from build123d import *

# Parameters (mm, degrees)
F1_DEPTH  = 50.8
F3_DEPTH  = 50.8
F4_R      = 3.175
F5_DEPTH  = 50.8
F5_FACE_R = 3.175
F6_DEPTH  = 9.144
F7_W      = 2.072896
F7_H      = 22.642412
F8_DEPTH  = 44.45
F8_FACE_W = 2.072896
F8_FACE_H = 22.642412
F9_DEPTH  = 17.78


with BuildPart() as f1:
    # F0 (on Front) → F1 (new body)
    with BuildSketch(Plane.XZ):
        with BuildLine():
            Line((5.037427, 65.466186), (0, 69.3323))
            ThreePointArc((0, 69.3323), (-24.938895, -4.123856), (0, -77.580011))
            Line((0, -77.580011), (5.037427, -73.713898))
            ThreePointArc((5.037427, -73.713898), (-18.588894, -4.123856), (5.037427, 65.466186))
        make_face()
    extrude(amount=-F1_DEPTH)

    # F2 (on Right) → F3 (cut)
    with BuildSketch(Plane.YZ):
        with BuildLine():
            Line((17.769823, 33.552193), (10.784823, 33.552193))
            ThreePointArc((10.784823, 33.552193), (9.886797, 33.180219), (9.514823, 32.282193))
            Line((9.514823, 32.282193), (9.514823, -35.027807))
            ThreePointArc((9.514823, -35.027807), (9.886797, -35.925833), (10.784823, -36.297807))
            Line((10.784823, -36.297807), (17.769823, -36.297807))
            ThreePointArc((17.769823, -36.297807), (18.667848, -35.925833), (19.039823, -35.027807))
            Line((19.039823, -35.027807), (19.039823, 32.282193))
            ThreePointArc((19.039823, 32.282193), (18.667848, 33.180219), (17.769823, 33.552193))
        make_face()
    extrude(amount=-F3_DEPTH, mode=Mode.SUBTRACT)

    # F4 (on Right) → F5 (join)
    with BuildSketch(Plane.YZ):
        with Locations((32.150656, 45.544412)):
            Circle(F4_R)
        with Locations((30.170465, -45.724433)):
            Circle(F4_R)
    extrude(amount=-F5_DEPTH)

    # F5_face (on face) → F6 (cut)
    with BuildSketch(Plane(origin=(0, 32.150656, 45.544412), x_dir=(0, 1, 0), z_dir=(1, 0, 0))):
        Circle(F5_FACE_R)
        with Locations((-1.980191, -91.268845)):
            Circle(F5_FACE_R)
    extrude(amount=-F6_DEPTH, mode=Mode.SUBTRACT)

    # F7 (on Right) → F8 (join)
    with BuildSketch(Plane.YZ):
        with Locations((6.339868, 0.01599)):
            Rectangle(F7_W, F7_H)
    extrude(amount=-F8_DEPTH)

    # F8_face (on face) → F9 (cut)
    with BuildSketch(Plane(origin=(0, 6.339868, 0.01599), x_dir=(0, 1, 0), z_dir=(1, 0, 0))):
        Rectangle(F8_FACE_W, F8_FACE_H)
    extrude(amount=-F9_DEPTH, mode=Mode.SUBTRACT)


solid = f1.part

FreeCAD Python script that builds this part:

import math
import FreeCAD as App
import Part
import Sketcher
from FreeCAD import Vector
Q = App.Units.Quantity


def add_polygon(sketch, points):
    """Adds a closed chain of lines whose ends are joined by coincident constraints."""
    first, n = sketch.GeometryCount, len(points)
    for a, b in zip(points, points[1:] + points[:1]):
        sketch.addGeometry(Part.LineSegment(App.Vector(*a, 0), App.Vector(*b, 0)), False)
    for i in range(n):
        sketch.addConstraint(Sketcher.Constraint("Coincident", first + i, 2, first + (i + 1) % n, 1))

doc = App.newDocument("Part")
params = doc.addObject("Spreadsheet::Sheet", "Params")
for row, (alias, value) in enumerate([
    ("sketch1_radius", "4.5 in"),
    ("sketch1_radius2", "4.7499999 in"),
    ("pad1_length", "2 in"),
    ("sketch2_radius", "0.0499999 in"),
    ("sketch2_height", "2.65 in"),
    ("sketch2_width", "0.275 in"),
    ("pocket1_length", "2 in"),
    ("sketch3_diameter", "0.25 in"),
    ("pad2_length", "2 in"),
    ("sketch4_diameter", "0.25 in"),
    ("pocket2_length", "0.36 in"),
    ("pad3_length", "1.75 in"),
    ("pocket3_length", "0.7 in"),
], start=1):
    params.set(f"A{row}", alias)
    params.set(f"B{row}", "=" + value)
    params.setAlias(f"B{row}", alias)

body = doc.addObject("PartDesign::Body", "Body")

# Sketch on XZ plane
sketch1 = body.newObject("Sketcher::SketchObject", "Sketch")
sketch1.AttachmentSupport = (doc.getObject("XZ_Plane"), [""])
sketch1.MapMode = "FlatFace"
sketch1.addGeometry(Part.LineSegment(Vector(5, 65, 0), Vector(0, 69, 0)), False)
sketch1.addGeometry(Part.ArcOfCircle(Part.Circle(Vector(96, -4, 0), Vector(0, 0, 1), 121), math.radians(142), math.radians(218)), False)
sketch1.addGeometry(Part.LineSegment(Vector(0, -78, 0), Vector(5, -74, 0)), False)
sketch1.addGeometry(Part.ArcOfCircle(Part.Circle(Vector(96, -4, 0), Vector(0, 0, 1), 114), math.radians(142), math.radians(218)), False)
sketch1.addConstraint(Sketcher.Constraint("Coincident", 0, 2, 1, 1))
sketch1.addConstraint(Sketcher.Constraint("Coincident", 1, 2, 2, 1))
sketch1.addConstraint(Sketcher.Constraint("Coincident", 2, 2, 3, 2))
sketch1.addConstraint(Sketcher.Constraint("Coincident", 3, 1, 0, 1))
sketch1.addConstraint(Sketcher.Constraint("Coincident", 3, 3, 1, 3))
sketch1.addConstraint(Sketcher.Constraint("PointOnObject", 0, 2, -2))
sketch1.addConstraint(Sketcher.Constraint("PointOnObject", 1, 2, -2))
sketch1.addConstraint(Sketcher.Constraint("Vertical", 2, 2, 3, 1))
sketch1.addConstraint(Sketcher.Constraint("Radius", 3, Q("4.5 in")))
sketch1.addConstraint(Sketcher.Constraint("Radius", 1, Q("4.7499999 in")))
sketch1.addConstraint(Sketcher.Constraint("DistanceY", -1, 1, 0, 2, Q("69.3323 mm")))
sketch1.addConstraint(Sketcher.Constraint("DistanceY", 2, 2, -1, 1, Q("73.713898 mm")))
sketch1.addConstraint(Sketcher.Constraint("DistanceY", 1, 2, -1, 1, Q("77.580011 mm")))
sketch1.setExpression("Constraints[8]", "Params.sketch1_radius")
sketch1.setExpression("Constraints[9]", "Params.sketch1_radius2")
pad1 = body.newObject("PartDesign::Pad", "Pad")
pad1.Profile = sketch1
pad1.setExpression("Length", "Params.pad1_length")
pad1.Reversed = True

# Sketch on YZ plane
sketch2 = body.newObject("Sketcher::SketchObject", "Sketch001")
sketch2.AttachmentSupport = (doc.getObject("YZ_Plane"), [""])
sketch2.MapMode = "FlatFace"
sketch2.addGeometry(Part.LineSegment(Vector(17.8, 33.6, 0), Vector(10.8, 33.6, 0)), False)
sketch2.addGeometry(Part.ArcOfCircle(Part.Circle(Vector(10.8, 32.3, 0), Vector(0, 0, 1), 1.3), math.radians(90), math.radians(180)), False)
sketch2.addGeometry(Part.LineSegment(Vector(9.5, 32.3, 0), Vector(9.5, -35, 0)), False)
sketch2.addGeometry(Part.ArcOfCircle(Part.Circle(Vector(10.8, -35, 0), Vector(0, 0, 1), 1.3), math.radians(180), math.radians(270)), False)
sketch2.addGeometry(Part.LineSegment(Vector(10.8, -36.3, 0), Vector(17.8, -36.3, 0)), False)
sketch2.addGeometry(Part.ArcOfCircle(Part.Circle(Vector(17.8, -35, 0), Vector(0, 0, 1), 1.3), math.radians(-90), math.radians(0)), False)
sketch2.addGeometry(Part.LineSegment(Vector(19, -35, 0), Vector(19, 32.3, 0)), False)
sketch2.addGeometry(Part.ArcOfCircle(Part.Circle(Vector(17.8, 32.3, 0), Vector(0, 0, 1), 1.3), math.radians(0), math.radians(90)), False)
sketch2.addConstraint(Sketcher.Constraint("Tangent", 0, 2, 1, 1))
sketch2.addConstraint(Sketcher.Constraint("Tangent", 1, 2, 2, 1))
sketch2.addConstraint(Sketcher.Constraint("Tangent", 2, 2, 3, 1))
sketch2.addConstraint(Sketcher.Constraint("Tangent", 3, 2, 4, 1))
sketch2.addConstraint(Sketcher.Constraint("Tangent", 4, 2, 5, 1))
sketch2.addConstraint(Sketcher.Constraint("Tangent", 5, 2, 6, 1))
sketch2.addConstraint(Sketcher.Constraint("Tangent", 6, 2, 7, 1))
sketch2.addConstraint(Sketcher.Constraint("Tangent", 7, 2, 0, 1))
sketch2.addConstraint(Sketcher.Constraint("Horizontal", 0))
sketch2.addConstraint(Sketcher.Constraint("Vertical", 2))
sketch2.addConstraint(Sketcher.Constraint("Horizontal", 4))
sketch2.addConstraint(Sketcher.Constraint("Vertical", 6))
sketch2.addConstraint(Sketcher.Constraint("Equal", 1, 3))
sketch2.addConstraint(Sketcher.Constraint("Equal", 3, 5))
sketch2.addConstraint(Sketcher.Constraint("Equal", 5, 7))
sketch2.addConstraint(Sketcher.Constraint("Radius", 1, Q("0.0499999 in")))
sketch2.addConstraint(Sketcher.Constraint("DistanceY", 2, 2, 2, 1, Q("2.65 in")))
sketch2.addConstraint(Sketcher.Constraint("DistanceX", 0, 2, 0, 1, Q("0.275 in")))
sketch2.addConstraint(Sketcher.Constraint("DistanceX", -1, 1, 1, 3, Q("10.784822 mm")))
sketch2.addConstraint(Sketcher.Constraint("DistanceY", 3, 3, -1, 1, Q("35.027808 mm")))
sketch2.setExpression("Constraints[15]", "Params.sketch2_radius")
sketch2.setExpression("Constraints[16]", "Params.sketch2_height")
sketch2.setExpression("Constraints[17]", "Params.sketch2_width")
pocket1 = body.newObject("PartDesign::Pocket", "Pocket")
pocket1.Profile = sketch2
pocket1.setExpression("Length", "Params.pocket1_length")

# Sketch on YZ plane
sketch3 = body.newObject("Sketcher::SketchObject", "Sketch002")
sketch3.AttachmentSupport = (doc.getObject("YZ_Plane"), [""])
sketch3.MapMode = "FlatFace"
sketch3.addGeometry(Part.Circle(Vector(32.2, 45.5, 0), Vector(0, 0, 1), 3.2), False)
sketch3.addGeometry(Part.Circle(Vector(30.2, -45.7, 0), Vector(0, 0, 1), 3.2), False)
sketch3.addConstraint(Sketcher.Constraint("Equal", 0, 1))
sketch3.addConstraint(Sketcher.Constraint("Diameter", 0, Q("0.25 in")))
sketch3.addConstraint(Sketcher.Constraint("DistanceX", 1, 3, 0, 3, Q("1.980191 mm")))
sketch3.addConstraint(Sketcher.Constraint("DistanceX", -1, 1, 0, 3, Q("32.150656 mm")))
sketch3.addConstraint(Sketcher.Constraint("DistanceY", -1, 1, 0, 3, Q("45.544412 mm")))
sketch3.addConstraint(Sketcher.Constraint("DistanceY", 1, 3, -1, 1, Q("45.724433 mm")))
sketch3.setExpression("Constraints[1]", "Params.sketch3_diameter")
pad2 = body.newObject("PartDesign::Pad", "Pad001")
pad2.Profile = sketch3
pad2.setExpression("Length", "Params.pad2_length")
pad2.Reversed = True

# Sketch on YZ plane
sketch4 = body.newObject("Sketcher::SketchObject", "Sketch003")
sketch4.AttachmentSupport = (doc.getObject("YZ_Plane"), [""])
sketch4.MapMode = "FlatFace"
sketch4.addGeometry(Part.Circle(Vector(32.2, 45.5, 0), Vector(0, 0, 1), 3.2), False)
sketch4.addGeometry(Part.Circle(Vector(30.2, -45.7, 0), Vector(0, 0, 1), 3.2), False)
sketch4.addConstraint(Sketcher.Constraint("Equal", 0, 1))
sketch4.addConstraint(Sketcher.Constraint("Diameter", 0, Q("0.25 in")))
sketch4.addConstraint(Sketcher.Constraint("DistanceX", 1, 3, 0, 3, Q("1.980191 mm")))
sketch4.addConstraint(Sketcher.Constraint("DistanceX", -1, 1, 0, 3, Q("32.150656 mm")))
sketch4.addConstraint(Sketcher.Constraint("DistanceY", -1, 1, 0, 3, Q("45.544412 mm")))
sketch4.addConstraint(Sketcher.Constraint("DistanceY", 1, 3, -1, 1, Q("45.724433 mm")))
sketch4.setExpression("Constraints[1]", "Params.sketch4_diameter")
pocket2 = body.newObject("PartDesign::Pocket", "Pocket001")
pocket2.Profile = sketch4
pocket2.setExpression("Length", "Params.pocket2_length")

# Sketch on YZ plane
sketch5 = body.newObject("Sketcher::SketchObject", "Sketch004")
sketch5.AttachmentSupport = (doc.getObject("YZ_Plane"), [""])
sketch5.MapMode = "FlatFace"
add_polygon(sketch5, [(5.3, 11.3), (5.3, -11.3), (7.4, -11.3), (7.4, 11.3)])  # lines 0-3
sketch5.addConstraint(Sketcher.Constraint("Vertical", 0))
sketch5.addConstraint(Sketcher.Constraint("Horizontal", 1))
sketch5.addConstraint(Sketcher.Constraint("Vertical", 2))
sketch5.addConstraint(Sketcher.Constraint("Horizontal", 3))
sketch5.addConstraint(Sketcher.Constraint("DistanceY", 0, 2, 0, 1, Q("22.642412 mm")))
sketch5.addConstraint(Sketcher.Constraint("DistanceX", 1, 1, 1, 2, Q("2.072896 mm")))
sketch5.addConstraint(Sketcher.Constraint("DistanceX", -1, 1, 0, 2, Q("5.30342 mm")))
sketch5.addConstraint(Sketcher.Constraint("DistanceY", 0, 2, -1, 1, Q("11.305216 mm")))
pad3 = body.newObject("PartDesign::Pad", "Pad002")
pad3.Profile = sketch5
pad3.setExpression("Length", "Params.pad3_length")
pad3.Reversed = True

# Sketch on YZ plane
sketch6 = body.newObject("Sketcher::SketchObject", "Sketch005")
sketch6.AttachmentSupport = (doc.getObject("YZ_Plane"), [""])
sketch6.MapMode = "FlatFace"
add_polygon(sketch6, [(5.3, 11.3), (5.3, -11.3), (7.4, -11.3), (7.4, 11.3)])  # lines 0-3
sketch6.addConstraint(Sketcher.Constraint("Vertical", 0))
sketch6.addConstraint(Sketcher.Constraint("Horizontal", 1))
sketch6.addConstraint(Sketcher.Constraint("Vertical", 2))
sketch6.addConstraint(Sketcher.Constraint("Horizontal", 3))
sketch6.addConstraint(Sketcher.Constraint("DistanceY", 0, 2, 0, 1, Q("22.642412 mm")))
sketch6.addConstraint(Sketcher.Constraint("DistanceX", 1, 1, 1, 2, Q("2.072896 mm")))
sketch6.addConstraint(Sketcher.Constraint("DistanceX", -1, 1, 0, 2, Q("5.30342 mm")))
sketch6.addConstraint(Sketcher.Constraint("DistanceY", 0, 2, -1, 1, Q("11.305216 mm")))
pocket3 = body.newObject("PartDesign::Pocket", "Pocket002")
pocket3.Profile = sketch6
pocket3.setExpression("Length", "Params.pocket3_length")

doc.recompute()
